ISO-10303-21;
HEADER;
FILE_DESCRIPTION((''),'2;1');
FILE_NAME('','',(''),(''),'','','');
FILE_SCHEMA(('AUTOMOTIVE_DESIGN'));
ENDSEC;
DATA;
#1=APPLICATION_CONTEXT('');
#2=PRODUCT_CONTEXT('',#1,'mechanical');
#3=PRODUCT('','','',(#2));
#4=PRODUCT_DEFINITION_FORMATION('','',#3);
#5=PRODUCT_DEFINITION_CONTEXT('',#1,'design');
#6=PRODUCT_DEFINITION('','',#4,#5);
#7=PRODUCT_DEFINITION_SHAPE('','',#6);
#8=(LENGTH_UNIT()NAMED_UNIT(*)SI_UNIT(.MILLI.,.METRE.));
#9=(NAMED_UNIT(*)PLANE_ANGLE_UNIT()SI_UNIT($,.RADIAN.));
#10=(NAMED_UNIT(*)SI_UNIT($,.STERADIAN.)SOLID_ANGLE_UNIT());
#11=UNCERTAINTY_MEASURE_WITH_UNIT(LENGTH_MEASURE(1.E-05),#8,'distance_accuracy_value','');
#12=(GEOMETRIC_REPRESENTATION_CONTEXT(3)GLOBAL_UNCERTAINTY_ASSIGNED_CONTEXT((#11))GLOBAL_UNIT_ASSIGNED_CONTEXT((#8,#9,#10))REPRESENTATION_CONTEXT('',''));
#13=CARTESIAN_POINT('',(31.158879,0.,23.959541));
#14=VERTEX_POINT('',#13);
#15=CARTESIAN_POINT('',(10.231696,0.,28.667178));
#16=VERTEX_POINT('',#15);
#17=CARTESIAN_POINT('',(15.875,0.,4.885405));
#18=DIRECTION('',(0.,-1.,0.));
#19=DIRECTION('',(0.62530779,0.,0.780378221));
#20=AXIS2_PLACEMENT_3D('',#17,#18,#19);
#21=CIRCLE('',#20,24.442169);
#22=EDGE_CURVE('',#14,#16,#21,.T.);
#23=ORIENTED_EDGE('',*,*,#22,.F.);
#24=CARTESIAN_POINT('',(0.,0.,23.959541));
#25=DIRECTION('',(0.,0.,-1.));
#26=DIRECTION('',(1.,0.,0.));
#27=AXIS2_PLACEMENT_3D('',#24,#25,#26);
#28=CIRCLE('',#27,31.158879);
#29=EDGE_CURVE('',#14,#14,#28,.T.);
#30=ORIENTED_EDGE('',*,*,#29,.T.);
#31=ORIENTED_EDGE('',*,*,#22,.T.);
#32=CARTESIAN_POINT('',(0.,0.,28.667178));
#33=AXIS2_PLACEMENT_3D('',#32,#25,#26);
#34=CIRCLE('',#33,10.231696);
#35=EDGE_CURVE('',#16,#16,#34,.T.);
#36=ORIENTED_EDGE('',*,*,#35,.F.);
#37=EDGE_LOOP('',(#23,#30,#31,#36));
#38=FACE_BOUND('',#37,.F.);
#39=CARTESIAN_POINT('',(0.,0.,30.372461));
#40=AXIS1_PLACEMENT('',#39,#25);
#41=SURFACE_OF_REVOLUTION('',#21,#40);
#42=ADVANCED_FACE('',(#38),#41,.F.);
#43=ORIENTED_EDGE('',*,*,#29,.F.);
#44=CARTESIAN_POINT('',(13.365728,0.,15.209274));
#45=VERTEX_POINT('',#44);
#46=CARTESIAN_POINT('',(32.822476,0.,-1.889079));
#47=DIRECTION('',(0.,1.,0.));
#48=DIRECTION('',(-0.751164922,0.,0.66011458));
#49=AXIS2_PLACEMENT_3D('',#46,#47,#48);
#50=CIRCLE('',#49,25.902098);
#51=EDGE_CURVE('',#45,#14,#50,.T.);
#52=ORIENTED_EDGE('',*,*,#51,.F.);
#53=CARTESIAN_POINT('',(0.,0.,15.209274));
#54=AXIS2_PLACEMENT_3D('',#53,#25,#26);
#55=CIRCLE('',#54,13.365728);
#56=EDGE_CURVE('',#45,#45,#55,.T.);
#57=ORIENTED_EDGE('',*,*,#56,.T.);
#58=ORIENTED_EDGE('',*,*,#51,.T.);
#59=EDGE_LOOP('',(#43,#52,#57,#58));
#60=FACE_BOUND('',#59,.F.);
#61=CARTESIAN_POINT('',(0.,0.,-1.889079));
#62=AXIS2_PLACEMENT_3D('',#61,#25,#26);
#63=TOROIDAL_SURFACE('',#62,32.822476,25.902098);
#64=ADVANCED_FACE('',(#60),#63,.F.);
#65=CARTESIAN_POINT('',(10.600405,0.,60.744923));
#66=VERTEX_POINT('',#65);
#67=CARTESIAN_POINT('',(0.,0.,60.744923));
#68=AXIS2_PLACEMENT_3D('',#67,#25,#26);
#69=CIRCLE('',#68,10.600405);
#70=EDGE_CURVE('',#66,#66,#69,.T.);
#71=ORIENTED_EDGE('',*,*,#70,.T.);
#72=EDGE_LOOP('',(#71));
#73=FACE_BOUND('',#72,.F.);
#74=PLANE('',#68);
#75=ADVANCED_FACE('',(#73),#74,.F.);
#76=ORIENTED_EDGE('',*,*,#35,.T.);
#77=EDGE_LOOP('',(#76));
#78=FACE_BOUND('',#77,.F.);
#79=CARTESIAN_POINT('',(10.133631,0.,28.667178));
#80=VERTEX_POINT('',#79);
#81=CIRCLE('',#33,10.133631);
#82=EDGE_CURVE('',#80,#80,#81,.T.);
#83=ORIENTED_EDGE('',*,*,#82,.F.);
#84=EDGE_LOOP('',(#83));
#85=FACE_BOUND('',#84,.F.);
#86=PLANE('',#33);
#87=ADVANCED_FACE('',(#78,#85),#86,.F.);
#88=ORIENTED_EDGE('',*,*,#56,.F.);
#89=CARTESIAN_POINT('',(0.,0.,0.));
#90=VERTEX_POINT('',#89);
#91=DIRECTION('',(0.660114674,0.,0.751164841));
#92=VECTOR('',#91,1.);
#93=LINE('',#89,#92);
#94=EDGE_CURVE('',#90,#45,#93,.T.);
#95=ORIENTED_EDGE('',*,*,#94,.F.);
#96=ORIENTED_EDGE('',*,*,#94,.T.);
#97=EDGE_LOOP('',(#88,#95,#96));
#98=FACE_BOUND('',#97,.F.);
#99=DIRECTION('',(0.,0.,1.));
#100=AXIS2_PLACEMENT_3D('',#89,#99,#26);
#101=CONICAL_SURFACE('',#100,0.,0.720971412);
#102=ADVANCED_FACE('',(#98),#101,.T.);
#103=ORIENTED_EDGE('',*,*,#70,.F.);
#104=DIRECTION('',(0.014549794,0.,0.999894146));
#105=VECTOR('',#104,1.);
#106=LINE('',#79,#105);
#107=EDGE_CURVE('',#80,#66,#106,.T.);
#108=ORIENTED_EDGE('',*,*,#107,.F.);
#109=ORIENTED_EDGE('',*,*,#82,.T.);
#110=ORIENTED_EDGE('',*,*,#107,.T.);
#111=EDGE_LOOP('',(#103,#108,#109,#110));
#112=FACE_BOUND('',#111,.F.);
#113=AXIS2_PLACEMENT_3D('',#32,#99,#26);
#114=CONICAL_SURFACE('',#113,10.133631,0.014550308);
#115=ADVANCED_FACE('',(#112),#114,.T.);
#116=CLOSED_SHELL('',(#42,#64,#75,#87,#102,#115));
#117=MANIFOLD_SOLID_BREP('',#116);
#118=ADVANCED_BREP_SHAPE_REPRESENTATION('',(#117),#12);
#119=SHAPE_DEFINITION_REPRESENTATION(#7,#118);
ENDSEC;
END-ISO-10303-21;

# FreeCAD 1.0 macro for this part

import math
import FreeCAD as App
import Part
import Sketcher
Q = App.Units.Quantity

doc = App.newDocument("Part")
body = doc.addObject("PartDesign::Body", "Body")

sketch1 = body.newObject("Sketcher::SketchObject", "Sketch")
sketch1.AttachmentSupport = (doc.getObject("XZ_Plane"), [""])
sketch1.MapMode = "FlatFace"
sketch1.addGeometry([
    Part.LineSegment(App.Vector(0, 60.74, 0), App.Vector(0, 0, 0)),
    Part.LineSegment(App.Vector(0, 0, 0), App.Vector(13.37, 15.21, 0)),
    Part.ArcOfCircle(Part.Circle(App.Vector(32.82, -1.89, 0), App.Vector(0, 0, 1), 25.9), math.radians(94), math.radians(139)),
    Part.ArcOfCircle(Part.Circle(App.Vector(15.88, 4.89, 0), App.Vector(0, 0, 1), 24.44), math.radians(51), math.radians(103)),
    Part.LineSegment(App.Vector(10.23, 28.67, 0), App.Vector(10.13, 28.67, 0)),
    Part.LineSegment(App.Vector(10.13, 28.67, 0), App.Vector(10.6, 60.74, 0)),
    Part.LineSegment(App.Vector(10.6, 60.74, 0), App.Vector(0, 60.74, 0)),
], False)
sketch1.addConstraint([
    Sketcher.Constraint("Coincident", 0, 2, 1, 1),
    Sketcher.Constraint("Tangent", 1, 2, 2, 2),
    Sketcher.Constraint("Coincident", 2, 1, 3, 1),
    Sketcher.Constraint("Coincident", 3, 2, 4, 1),
    Sketcher.Constraint("Coincident", 4, 2, 5, 1),
    Sketcher.Constraint("Coincident", 5, 2, 6, 1),
    Sketcher.Constraint("Coincident", 6, 2, 0, 1),
    Sketcher.Constraint("Vertical", 0),
    Sketcher.Constraint("Horizontal", 4),
    Sketcher.Constraint("Horizontal", 6),
    Sketcher.Constraint("Coincident", 0, 2, -1, 1),
    Sketcher.Constraint("Radius", 2, Q("25.902098 mm")),
    Sketcher.Constraint("Radius", 3, Q("24.442169 mm")),
    Sketcher.Constraint("DistanceX", -1, 1, 3, 3, Q("15.875 mm")),
    Sketcher.Constraint("Distance", 5, Q("32.081141 mm")),
    Sketcher.Constraint("DistanceX", 4, 2, 4, 1, Q("0.098065 mm")),
    Sketcher.Constraint("DistanceX", 6, 2, 6, 1, Q("10.600405 mm")),
    Sketcher.Constraint("DistanceY", 0, 2, 0, 1, Q("60.744923 mm")),
    Sketcher.Constraint("DistanceY", 2, 3, -1, 1, Q("1.889079 mm")),
    Sketcher.Constraint("DistanceX", -1, 1, 1, 2, Q("13.365728 mm")),
    Sketcher.Constraint("DistanceX", -1, 1, 2, 1, Q("31.158879 mm")),
])
revolution = body.newObject("PartDesign::Revolution", "Revolution")
revolution.Profile = sketch1
revolution.ReferenceAxis = (sketch1, ["V_Axis"])
revolution.Angle = 360

doc.recompute()
